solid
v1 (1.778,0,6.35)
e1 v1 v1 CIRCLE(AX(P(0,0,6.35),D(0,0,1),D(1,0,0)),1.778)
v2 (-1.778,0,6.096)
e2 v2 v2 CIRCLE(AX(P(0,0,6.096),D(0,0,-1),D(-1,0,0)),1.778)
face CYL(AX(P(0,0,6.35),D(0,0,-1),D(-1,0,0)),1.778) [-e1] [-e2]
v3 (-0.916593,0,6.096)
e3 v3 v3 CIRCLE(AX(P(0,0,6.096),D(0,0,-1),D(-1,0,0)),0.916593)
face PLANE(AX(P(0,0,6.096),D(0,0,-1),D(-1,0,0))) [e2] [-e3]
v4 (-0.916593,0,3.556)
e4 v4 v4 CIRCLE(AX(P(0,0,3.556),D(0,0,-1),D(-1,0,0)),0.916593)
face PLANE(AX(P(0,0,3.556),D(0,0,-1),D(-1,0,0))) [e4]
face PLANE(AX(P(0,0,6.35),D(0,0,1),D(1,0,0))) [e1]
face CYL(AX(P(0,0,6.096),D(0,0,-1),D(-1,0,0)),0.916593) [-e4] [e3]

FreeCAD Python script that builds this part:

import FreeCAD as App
import Part
import Sketcher
Q = App.Units.Quantity

doc = App.newDocument("Part")
params = doc.addObject("Spreadsheet::Sheet", "Params")
for row, (alias, value) in enumerate([
    ("sketch1_diameter", "0.14 in"),
    ("pad1_length", "0.25 in"),
    ("sketch2_diameter", "0.14 in"),
    ("pocket1_length", "0.24 in"),
    ("pocket2_length", "0.14 in"),
], start=1):
    params.set(f"A{row}", alias)
    params.set(f"B{row}", "=" + value)
    params.setAlias(f"B{row}", alias)

body = doc.addObject("PartDesign::Body", "Body")

# Sketch on XY plane
sketch1 = body.newObject("Sketcher::SketchObject", "Sketch")
sketch1.AttachmentSupport = (doc.getObject("XY_Plane"), [""])
sketch1.MapMode = "FlatFace"
sketch1.addGeometry(Part.Circle(App.Vector(0, 0, 0), App.Vector(0, 0, 1), 1.778), False)
sketch1.addConstraint([
    Sketcher.Constraint("Coincident", 0, 3, -1, 1),
    Sketcher.Constraint("Diameter", 0, Q("0.14 in")),
])
sketch1.setExpression("Constraints[1]", "Params.sketch1_diameter")
pad1 = body.newObject("PartDesign::Pad", "Pad")
pad1.Profile = sketch1
pad1.setExpression("Length", "Params.pad1_length")

# Sketch on XY plane
sketch2 = body.newObject("Sketcher::SketchObject", "Sketch001")
sketch2.AttachmentSupport = (doc.getObject("XY_Plane"), [""])
sketch2.MapMode = "FlatFace"
sketch2.addGeometry([
    Part.Circle(App.Vector(0, 0, 0), App.Vector(0, 0, 1), 1.778),
    Part.Circle(App.Vector(0, 0, 0), App.Vector(0, 0, 1), 0.916593),
], False)
sketch2.addConstraint([
    Sketcher.Constraint("Coincident", 0, 3, -1, 1),
    Sketcher.Constraint("Coincident", 1, 3, -1, 1),
    Sketcher.Constraint("Diameter", 0, Q("0.14 in")),
    Sketcher.Constraint("Diameter", 1, 1.833186),
])
sketch2.setExpression("Constraints[2]", "Params.sketch2_diameter")
pocket1 = body.newObject("PartDesign::Pocket", "Pocket")
pocket1.Profile = sketch2
pocket1.setExpression("Length", "Params.pocket1_length")
pocket1.Reversed = True

# Sketch on XY plane
sketch3 = body.newObject("Sketcher::SketchObject", "Sketch002")
sketch3.AttachmentSupport = (doc.getObject("XY_Plane"), [""])
sketch3.MapMode = "FlatFace"
sketch3.addGeometry(Part.Circle(App.Vector(0, 0, 0), App.Vector(0, 0, 1), 0.916593), False)
sketch3.addConstraint([
    Sketcher.Constraint("Coincident", 0, 3, -1, 1),
    Sketcher.Constraint("Diameter", 0, 1.833186),
])
pocket2 = body.newObject("PartDesign::Pocket", "Pocket001")
pocket2.Profile = sketch3
pocket2.setExpression("Length", "Params.pocket2_length")
pocket2.Reversed = True

doc.recompute()
